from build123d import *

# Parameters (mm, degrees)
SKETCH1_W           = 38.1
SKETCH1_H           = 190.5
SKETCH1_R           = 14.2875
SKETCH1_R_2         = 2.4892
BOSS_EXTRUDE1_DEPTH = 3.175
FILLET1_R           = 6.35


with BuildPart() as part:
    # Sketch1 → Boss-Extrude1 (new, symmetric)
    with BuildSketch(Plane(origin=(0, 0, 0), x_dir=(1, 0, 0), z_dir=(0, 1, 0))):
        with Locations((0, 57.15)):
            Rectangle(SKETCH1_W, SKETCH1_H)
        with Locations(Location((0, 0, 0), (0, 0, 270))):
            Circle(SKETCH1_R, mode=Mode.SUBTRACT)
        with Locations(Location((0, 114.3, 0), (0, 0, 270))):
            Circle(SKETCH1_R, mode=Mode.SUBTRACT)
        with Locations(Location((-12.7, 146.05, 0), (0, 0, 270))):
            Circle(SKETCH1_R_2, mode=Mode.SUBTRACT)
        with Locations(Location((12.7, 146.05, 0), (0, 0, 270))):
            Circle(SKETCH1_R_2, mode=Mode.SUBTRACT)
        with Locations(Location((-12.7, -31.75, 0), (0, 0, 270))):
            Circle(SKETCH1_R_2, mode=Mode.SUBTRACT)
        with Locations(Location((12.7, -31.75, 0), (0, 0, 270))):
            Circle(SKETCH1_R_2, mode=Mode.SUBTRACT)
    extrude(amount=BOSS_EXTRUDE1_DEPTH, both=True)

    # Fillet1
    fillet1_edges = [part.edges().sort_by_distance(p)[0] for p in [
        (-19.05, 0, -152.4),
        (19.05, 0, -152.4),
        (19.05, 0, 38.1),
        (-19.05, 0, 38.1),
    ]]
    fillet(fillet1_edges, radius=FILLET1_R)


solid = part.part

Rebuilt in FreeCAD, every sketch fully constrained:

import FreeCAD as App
import Part
import Sketcher

V = App.Vector
Q = App.Units.Quantity


def edges_at(feature, points):
    """Names of the edges that pass closest to the given points."""
    edges = feature.Shape.Edges
    near = lambda p: min(range(len(edges)), key=lambda i: edges[i].distToShape(Part.Vertex(*p))[0])
    return sorted({f"Edge{near(p) + 1}" for p in points})


def add_polygon(sketch, points):
    """Adds a closed chain of lines whose ends are joined by coincident constraints."""
    first, n = sketch.GeometryCount, len(points)
    for a, b in zip(points, points[1:] + points[:1]):
        sketch.addGeometry(Part.LineSegment(App.Vector(*a, 0), App.Vector(*b, 0)), False)
    for i in range(n):
        sketch.addConstraint(Sketcher.Constraint("Coincident", first + i, 2, first + (i + 1) % n, 1))

doc = App.newDocument("Part")
params = doc.addObject("Spreadsheet::Sheet", "Params")
for row, (alias, value) in enumerate([
    ("sketch1_diameter", "0.196 in"),
    ("sketch1_diameter2", "1.125 in"),
    ("sketch1_width", "1.5 in"),
    ("sketch1_height", "7.5 in"),
    ("pad1_length", "0.25 in"),
    ("fillet_radius", "0.25 in"),
], start=1):
    params.set(f"A{row}", alias)
    params.set(f"B{row}", "=" + value)
    params.setAlias(f"B{row}", alias)

body = doc.addObject("PartDesign::Body", "Body")

# Sketch on XZ plane
sketch1 = body.newObject("Sketcher::SketchObject", "Sketch")
sketch1.AttachmentSupport = (doc.getObject("XZ_Plane"), [""])
sketch1.MapMode = "FlatFace"
add_polygon(sketch1, [(-19.1, -152.4), (-19.1, 38.1), (19.1, 38.1), (19.1, -152.4)])  # lines 0-3
sketch1.addGeometry(Part.Circle(V(-12.7, 31.8, 0), V(0, 0, 1), 2.5), False)  # 4
sketch1.addGeometry(Part.Circle(V(0, 0, 0), V(0, 0, 1), 14.3), False)  # 5
sketch1.addGeometry(Part.Circle(V(12.7, 31.8, 0), V(0, 0, 1), 2.5), False)  # 6
sketch1.addGeometry(Part.Circle(V(-12.7, -146.1, 0), V(0, 0, 1), 2.5), False)  # 7
sketch1.addGeometry(Part.Circle(V(0, -114.3, 0), V(0, 0, 1), 14.3), False)  # 8
sketch1.addGeometry(Part.Circle(V(12.7, -146.1, 0), V(0, 0, 1), 2.5), False)  # 9
sketch1.addConstraint([
    Sketcher.Constraint("Vertical", 0),
    Sketcher.Constraint("Horizontal", 1),
    Sketcher.Constraint("Vertical", 2),
    Sketcher.Constraint("Horizontal", 3),
    Sketcher.Constraint("Coincident", 5, 3, -1, 1),
    Sketcher.Constraint("Equal", 4, 6),
    Sketcher.Constraint("Equal", 6, 7),
    Sketcher.Constraint("Equal", 5, 8),
    Sketcher.Constraint("Equal", 7, 9),
    Sketcher.Constraint("Symmetric", 4, 3, 6, 3, -2),
    Sketcher.Constraint("Symmetric", 7, 3, 9, 3, -2),
    Sketcher.Constraint("PointOnObject", 8, 3, -2),
    Sketcher.Constraint("Vertical", 4, 3, 7, 3),
    Sketcher.Constraint("Diameter", 4, Q("0.196 in")),
    Sketcher.Constraint("Diameter", 5, Q("1.125 in")),
    Sketcher.Constraint("DistanceX", 1, 1, 1, 2, Q("1.5 in")),
    Sketcher.Constraint("DistanceY", 0, 1, 0, 2, Q("7.5 in")),
    Sketcher.Constraint("DistanceY", 2, 2, -1, 1, Q("6 in")),
    Sketcher.Constraint("DistanceX", 4, 3, 6, 3, Q("1 in")),
    Sketcher.Constraint("DistanceY", 7, 3, 4, 3, Q("7 in")),
    Sketcher.Constraint("DistanceY", 8, 3, 0, 2, Q("6 in")),
    Sketcher.Constraint("DistanceY", -1, 1, 4, 3, Q("1.25 in")),
    Sketcher.Constraint("DistanceX", 0, 2, -1, 1, Q("0.75 in")),
])
sketch1.setExpression("Constraints[17]", "Params.sketch1_diameter")
sketch1.setExpression("Constraints[18]", "Params.sketch1_diameter2")
sketch1.setExpression("Constraints[19]", "Params.sketch1_width")
sketch1.setExpression("Constraints[20]", "Params.sketch1_height")
pad1 = body.newObject("PartDesign::Pad", "Pad")
pad1.Profile = sketch1
pad1.setExpression("Length", "Params.pad1_length")
pad1.Midplane = True
doc.recompute()

fillet = body.newObject("PartDesign::Fillet", "Fillet")
fillet.Base = (pad1, edges_at(pad1, [
    (-19.05, 0, -152.4),
    (19.05, 0, -152.4),
    (19.05, 0, 38.1),
    (-19.05, 0, 38.1),
]))
fillet.setExpression("Radius", "Params.fillet_radius")

doc.recompute()
